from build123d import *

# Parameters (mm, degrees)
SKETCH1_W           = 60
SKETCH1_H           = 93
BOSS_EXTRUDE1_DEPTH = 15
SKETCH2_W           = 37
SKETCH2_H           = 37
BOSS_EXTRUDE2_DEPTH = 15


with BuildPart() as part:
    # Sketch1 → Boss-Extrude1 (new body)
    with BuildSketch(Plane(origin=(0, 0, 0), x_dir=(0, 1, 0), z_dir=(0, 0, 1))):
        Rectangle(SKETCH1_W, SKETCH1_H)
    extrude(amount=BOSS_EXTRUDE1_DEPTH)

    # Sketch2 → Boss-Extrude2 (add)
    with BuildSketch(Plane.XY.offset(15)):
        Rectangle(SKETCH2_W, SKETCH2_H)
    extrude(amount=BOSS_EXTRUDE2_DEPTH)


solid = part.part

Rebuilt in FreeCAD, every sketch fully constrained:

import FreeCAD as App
import Part
import Sketcher

doc = App.newDocument("Part")
params = doc.addObject("Spreadsheet::Sheet", "Params")
for row, (alias, value) in enumerate([
    ("sketch1_width", "93 mm"),
    ("sketch1_height", "60 mm"),
    ("pad1_length", "15 mm"),
    ("sketch2_width", "37 mm"),
    ("pad2_length", "15 mm"),
], start=1):
    params.set(f"A{row}", alias)
    params.set(f"B{row}", "=" + value)
    params.setAlias(f"B{row}", alias)

body = doc.addObject("PartDesign::Body", "Body")

sketch1 = body.newObject("Sketcher::SketchObject", "Sketch")
sketch1.AttachmentSupport = (doc.getObject("XY_Plane"), [""])
sketch1.MapMode = "FlatFace"
sketch1.addGeometry([
    Part.LineSegment(App.Vector(-46, -30, 0), App.Vector(46, -30, 0)),
    Part.LineSegment(App.Vector(46, -30, 0), App.Vector(46, 30, 0)),
    Part.LineSegment(App.Vector(46, 30, 0), App.Vector(-46, 30, 0)),
    Part.LineSegment(App.Vector(-46, 30, 0), App.Vector(-46, -30, 0)),
], False)
sketch1.addConstraint([
    Sketcher.Constraint("Coincident", 0, 2, 1, 1),
    Sketcher.Constraint("Coincident", 1, 2, 2, 1),
    Sketcher.Constraint("Coincident", 2, 2, 3, 1),
    Sketcher.Constraint("Coincident", 3, 2, 0, 1),
    Sketcher.Constraint("Horizontal", 0),
    Sketcher.Constraint("Vertical", 1),
    Sketcher.Constraint("Horizontal", 2),
    Sketcher.Constraint("Vertical", 3),
    Sketcher.Constraint("Symmetric", 0, 2, 2, 2, -1, 1),
    Sketcher.Constraint("DistanceX", 0, 1, 0, 2, 93.0),
    Sketcher.Constraint("DistanceY", 1, 1, 1, 2, 60.0),
])
sketch1.setExpression("Constraints[9]", "Params.sketch1_width")
sketch1.setExpression("Constraints[10]", "Params.sketch1_height")
pad1 = body.newObject("PartDesign::Pad", "Pad")
pad1.Profile = sketch1
pad1.setExpression("Length", "Params.pad1_length")

sketch2 = body.newObject("Sketcher::SketchObject", "Sketch001")
sketch2.AttachmentSupport = (doc.getObject("XY_Plane"), [""])
sketch2.MapMode = "FlatFace"
sketch2.AttachmentOffset = App.Placement(App.Vector(0, 0, 15), App.Rotation())
sketch2.addGeometry([
    Part.LineSegment(App.Vector(-18, 18, 0), App.Vector(-18, -18, 0)),
    Part.LineSegment(App.Vector(-18, -18, 0), App.Vector(18, -18, 0)),
    Part.LineSegment(App.Vector(18, -18, 0), App.Vector(18, 18, 0)),
    Part.LineSegment(App.Vector(18, 18, 0), App.Vector(-18, 18, 0)),
], False)
sketch2.addConstraint([
    Sketcher.Constraint("Coincident", 0, 2, 1, 1),
    Sketcher.Constraint("Coincident", 1, 2, 2, 1),
    Sketcher.Constraint("Coincident", 2, 2, 3, 1),
    Sketcher.Constraint("Coincident", 3, 2, 0, 1),
    Sketcher.Constraint("Vertical", 0),
    Sketcher.Constraint("Horizontal", 1),
    Sketcher.Constraint("Vertical", 2),
    Sketcher.Constraint("Horizontal", 3),
    Sketcher.Constraint("Symmetric", 0, 2, 2, 2, -1, 1),
    Sketcher.Constraint("Equal", 3, 0),
    Sketcher.Constraint("DistanceX", 1, 1, 1, 2, 37.0),
])
sketch2.setExpression("Constraints[10]", "Params.sketch2_width")
pad2 = body.newObject("PartDesign::Pad", "Pad001")
pad2.Profile = sketch2
pad2.setExpression("Length", "Params.pad2_length")

doc.recompute()
